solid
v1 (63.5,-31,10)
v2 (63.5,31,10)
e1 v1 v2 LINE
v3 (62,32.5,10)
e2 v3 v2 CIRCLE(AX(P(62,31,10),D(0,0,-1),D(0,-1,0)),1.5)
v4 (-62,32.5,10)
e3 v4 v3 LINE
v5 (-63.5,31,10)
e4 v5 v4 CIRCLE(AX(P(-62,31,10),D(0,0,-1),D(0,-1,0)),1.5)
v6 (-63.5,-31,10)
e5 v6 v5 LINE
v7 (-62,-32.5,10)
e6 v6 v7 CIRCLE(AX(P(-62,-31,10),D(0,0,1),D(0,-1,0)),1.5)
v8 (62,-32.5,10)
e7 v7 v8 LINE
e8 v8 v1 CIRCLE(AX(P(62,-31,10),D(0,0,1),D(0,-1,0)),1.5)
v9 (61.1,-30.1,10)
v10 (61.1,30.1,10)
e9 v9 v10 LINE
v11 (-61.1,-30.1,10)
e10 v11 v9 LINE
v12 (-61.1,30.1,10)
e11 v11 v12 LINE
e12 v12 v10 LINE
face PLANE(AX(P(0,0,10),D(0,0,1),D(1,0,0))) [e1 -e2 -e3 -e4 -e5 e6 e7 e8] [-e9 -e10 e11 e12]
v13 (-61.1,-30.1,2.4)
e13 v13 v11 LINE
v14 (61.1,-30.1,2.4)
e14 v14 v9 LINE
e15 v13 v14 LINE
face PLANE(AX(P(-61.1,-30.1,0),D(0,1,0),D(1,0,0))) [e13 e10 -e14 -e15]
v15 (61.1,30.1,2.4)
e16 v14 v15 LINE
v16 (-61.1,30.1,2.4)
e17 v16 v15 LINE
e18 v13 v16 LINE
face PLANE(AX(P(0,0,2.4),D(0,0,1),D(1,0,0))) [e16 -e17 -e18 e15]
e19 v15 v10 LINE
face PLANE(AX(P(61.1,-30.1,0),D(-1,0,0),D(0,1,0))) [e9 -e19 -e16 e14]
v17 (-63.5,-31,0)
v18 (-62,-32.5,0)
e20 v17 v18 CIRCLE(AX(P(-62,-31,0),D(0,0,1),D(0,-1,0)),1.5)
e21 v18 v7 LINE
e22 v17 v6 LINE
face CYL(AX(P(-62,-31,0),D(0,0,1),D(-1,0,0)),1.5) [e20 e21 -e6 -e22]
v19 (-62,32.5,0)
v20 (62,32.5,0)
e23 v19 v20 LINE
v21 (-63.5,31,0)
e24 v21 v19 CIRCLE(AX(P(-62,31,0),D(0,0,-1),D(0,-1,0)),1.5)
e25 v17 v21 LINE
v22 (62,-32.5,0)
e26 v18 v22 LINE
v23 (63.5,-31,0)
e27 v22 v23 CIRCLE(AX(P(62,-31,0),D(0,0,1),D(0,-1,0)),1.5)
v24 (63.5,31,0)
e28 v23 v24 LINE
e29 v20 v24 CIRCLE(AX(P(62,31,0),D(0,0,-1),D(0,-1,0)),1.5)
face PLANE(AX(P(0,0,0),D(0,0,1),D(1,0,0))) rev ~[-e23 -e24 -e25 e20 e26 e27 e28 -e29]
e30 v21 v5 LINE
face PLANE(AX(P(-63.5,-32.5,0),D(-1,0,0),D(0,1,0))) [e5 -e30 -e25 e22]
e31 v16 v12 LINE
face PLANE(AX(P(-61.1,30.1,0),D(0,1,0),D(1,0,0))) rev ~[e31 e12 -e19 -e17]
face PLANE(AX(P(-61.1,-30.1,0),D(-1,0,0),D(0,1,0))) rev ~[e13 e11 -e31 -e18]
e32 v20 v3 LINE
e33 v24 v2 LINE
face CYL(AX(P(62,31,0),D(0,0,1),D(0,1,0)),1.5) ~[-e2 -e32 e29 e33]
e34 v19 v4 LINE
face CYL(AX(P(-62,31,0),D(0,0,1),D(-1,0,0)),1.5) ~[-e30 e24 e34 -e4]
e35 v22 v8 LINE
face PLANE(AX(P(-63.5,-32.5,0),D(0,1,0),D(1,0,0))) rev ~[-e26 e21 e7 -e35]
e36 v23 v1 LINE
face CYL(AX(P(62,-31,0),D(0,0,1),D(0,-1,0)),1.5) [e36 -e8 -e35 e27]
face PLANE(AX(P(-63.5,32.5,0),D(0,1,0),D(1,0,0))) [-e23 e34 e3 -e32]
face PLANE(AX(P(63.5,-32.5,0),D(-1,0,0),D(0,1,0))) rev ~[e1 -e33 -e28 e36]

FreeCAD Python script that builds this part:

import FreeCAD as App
import Part
import Sketcher
from FreeCAD import Vector


def edges_at(feature, points):
    """Names of the edges that pass closest to the given points."""
    edges = feature.Shape.Edges
    near = lambda p: min(range(len(edges)), key=lambda i: edges[i].distToShape(Part.Vertex(*p))[0])
    return sorted({f"Edge{near(p) + 1}" for p in points})

doc = App.newDocument("Part")
body = doc.addObject("PartDesign::Body", "Body")

# Sketch on XY plane
sketch1 = body.newObject("Sketcher::SketchObject", "Sketch")
sketch1.AttachmentSupport = (doc.getObject("XY_Plane"), [""])
sketch1.MapMode = "FlatFace"
sketch1.addGeometry(Part.LineSegment(Vector(-63.5, 32.5, 0), Vector(-63.5, -32.5, 0)), False)
sketch1.addGeometry(Part.LineSegment(Vector(-63.5, -32.5, 0), Vector(63.5, -32.5, 0)), False)
sketch1.addGeometry(Part.LineSegment(Vector(63.5, -32.5, 0), Vector(63.5, 32.5, 0)), False)
sketch1.addGeometry(Part.LineSegment(Vector(63.5, 32.5, 0), Vector(-63.5, 32.5, 0)), False)
sketch1.addGeometry(Part.LineSegment(Vector(61.1, -30.1, 0), Vector(-61.1, -30.1, 0)), False)
sketch1.addGeometry(Part.LineSegment(Vector(-61.1, -30.1, 0), Vector(-61.1, 30.1, 0)), False)
sketch1.addGeometry(Part.LineSegment(Vector(-61.1, 30.1, 0), Vector(61.1, 30.1, 0)), False)
sketch1.addGeometry(Part.LineSegment(Vector(61.1, 30.1, 0), Vector(61.1, -30.1, 0)), False)
sketch1.addConstraint(Sketcher.Constraint("Coincident", 0, 2, 1, 1))
sketch1.addConstraint(Sketcher.Constraint("Coincident", 1, 2, 2, 1))
sketch1.addConstraint(Sketcher.Constraint("Coincident", 2, 2, 3, 1))
sketch1.addConstraint(Sketcher.Constraint("Coincident", 3, 2, 0, 1))
sketch1.addConstraint(Sketcher.Constraint("Coincident", 4, 2, 5, 1))
sketch1.addConstraint(Sketcher.Constraint("Coincident", 5, 2, 6, 1))
sketch1.addConstraint(Sketcher.Constraint("Coincident", 6, 2, 7, 1))
sketch1.addConstraint(Sketcher.Constraint("Coincident", 7, 2, 4, 1))
sketch1.addConstraint(Sketcher.Constraint("Vertical", 0))
sketch1.addConstraint(Sketcher.Constraint("Horizontal", 1))
sketch1.addConstraint(Sketcher.Constraint("Vertical", 2))
sketch1.addConstraint(Sketcher.Constraint("Horizontal", 3))
sketch1.addConstraint(Sketcher.Constraint("Horizontal", 4))
sketch1.addConstraint(Sketcher.Constraint("Vertical", 5))
sketch1.addConstraint(Sketcher.Constraint("Horizontal", 6))
sketch1.addConstraint(Sketcher.Constraint("Vertical", 7))
sketch1.addConstraint(Sketcher.Constraint("Symmetric", 0, 2, 2, 2, -1, 1))
sketch1.addConstraint(Sketcher.Constraint("Symmetric", 4, 2, 6, 2, -1, 1))
sketch1.addConstraint(Sketcher.Constraint("DistanceX", 1, 1, 1, 2, 127.0))
sketch1.addConstraint(Sketcher.Constraint("DistanceY", 0, 2, 0, 1, 65.0))
sketch1.addConstraint(Sketcher.Constraint("DistanceX", 4, 2, 4, 1, 122.2))
sketch1.addConstraint(Sketcher.Constraint("DistanceY", 5, 1, 5, 2, 60.2))
pad1 = body.newObject("PartDesign::Pad", "Pad")
pad1.Profile = sketch1
pad1.Length = 10

# Sketch on XY plane
sketch2 = body.newObject("Sketcher::SketchObject", "Sketch001")
sketch2.AttachmentSupport = (doc.getObject("XY_Plane"), [""])
sketch2.MapMode = "FlatFace"
sketch2.addGeometry(Part.LineSegment(Vector(-61.1, 30.1, 0), Vector(-61.1, -30.1, 0)), False)
sketch2.addGeometry(Part.LineSegment(Vector(-61.1, -30.1, 0), Vector(61.1, -30.1, 0)), False)
sketch2.addGeometry(Part.LineSegment(Vector(61.1, -30.1, 0), Vector(61.1, 30.1, 0)), False)
sketch2.addGeometry(Part.LineSegment(Vector(61.1, 30.1, 0), Vector(-61.1, 30.1, 0)), False)
sketch2.addConstraint(Sketcher.Constraint("Coincident", 0, 2, 1, 1))
sketch2.addConstraint(Sketcher.Constraint("Coincident", 1, 2, 2, 1))
sketch2.addConstraint(Sketcher.Constraint("Coincident", 2, 2, 3, 1))
sketch2.addConstraint(Sketcher.Constraint("Coincident", 3, 2, 0, 1))
sketch2.addConstraint(Sketcher.Constraint("Vertical", 0))
sketch2.addConstraint(Sketcher.Constraint("Horizontal", 1))
sketch2.addConstraint(Sketcher.Constraint("Vertical", 2))
sketch2.addConstraint(Sketcher.Constraint("Horizontal", 3))
sketch2.addConstraint(Sketcher.Constraint("Symmetric", 0, 2, 2, 2, -1, 1))
sketch2.addConstraint(Sketcher.Constraint("DistanceX", 1, 1, 1, 2, 122.2))
sketch2.addConstraint(Sketcher.Constraint("DistanceY", 0, 2, 0, 1, 60.2))
pad2 = body.newObject("PartDesign::Pad", "Pad001")
pad2.Profile = sketch2
pad2.Length = 2.4
doc.recompute()

fillet = body.newObject("PartDesign::Fillet", "Fillet")
fillet.Base = (pad2, edges_at(pad2, [
    (63.5, -32.5, 5),
    (63.5, 32.5, 5),
    (-63.5, 32.5, 5),
    (-63.5, -32.5, 5),
]))
fillet.Radius = 1.5

doc.recompute()
